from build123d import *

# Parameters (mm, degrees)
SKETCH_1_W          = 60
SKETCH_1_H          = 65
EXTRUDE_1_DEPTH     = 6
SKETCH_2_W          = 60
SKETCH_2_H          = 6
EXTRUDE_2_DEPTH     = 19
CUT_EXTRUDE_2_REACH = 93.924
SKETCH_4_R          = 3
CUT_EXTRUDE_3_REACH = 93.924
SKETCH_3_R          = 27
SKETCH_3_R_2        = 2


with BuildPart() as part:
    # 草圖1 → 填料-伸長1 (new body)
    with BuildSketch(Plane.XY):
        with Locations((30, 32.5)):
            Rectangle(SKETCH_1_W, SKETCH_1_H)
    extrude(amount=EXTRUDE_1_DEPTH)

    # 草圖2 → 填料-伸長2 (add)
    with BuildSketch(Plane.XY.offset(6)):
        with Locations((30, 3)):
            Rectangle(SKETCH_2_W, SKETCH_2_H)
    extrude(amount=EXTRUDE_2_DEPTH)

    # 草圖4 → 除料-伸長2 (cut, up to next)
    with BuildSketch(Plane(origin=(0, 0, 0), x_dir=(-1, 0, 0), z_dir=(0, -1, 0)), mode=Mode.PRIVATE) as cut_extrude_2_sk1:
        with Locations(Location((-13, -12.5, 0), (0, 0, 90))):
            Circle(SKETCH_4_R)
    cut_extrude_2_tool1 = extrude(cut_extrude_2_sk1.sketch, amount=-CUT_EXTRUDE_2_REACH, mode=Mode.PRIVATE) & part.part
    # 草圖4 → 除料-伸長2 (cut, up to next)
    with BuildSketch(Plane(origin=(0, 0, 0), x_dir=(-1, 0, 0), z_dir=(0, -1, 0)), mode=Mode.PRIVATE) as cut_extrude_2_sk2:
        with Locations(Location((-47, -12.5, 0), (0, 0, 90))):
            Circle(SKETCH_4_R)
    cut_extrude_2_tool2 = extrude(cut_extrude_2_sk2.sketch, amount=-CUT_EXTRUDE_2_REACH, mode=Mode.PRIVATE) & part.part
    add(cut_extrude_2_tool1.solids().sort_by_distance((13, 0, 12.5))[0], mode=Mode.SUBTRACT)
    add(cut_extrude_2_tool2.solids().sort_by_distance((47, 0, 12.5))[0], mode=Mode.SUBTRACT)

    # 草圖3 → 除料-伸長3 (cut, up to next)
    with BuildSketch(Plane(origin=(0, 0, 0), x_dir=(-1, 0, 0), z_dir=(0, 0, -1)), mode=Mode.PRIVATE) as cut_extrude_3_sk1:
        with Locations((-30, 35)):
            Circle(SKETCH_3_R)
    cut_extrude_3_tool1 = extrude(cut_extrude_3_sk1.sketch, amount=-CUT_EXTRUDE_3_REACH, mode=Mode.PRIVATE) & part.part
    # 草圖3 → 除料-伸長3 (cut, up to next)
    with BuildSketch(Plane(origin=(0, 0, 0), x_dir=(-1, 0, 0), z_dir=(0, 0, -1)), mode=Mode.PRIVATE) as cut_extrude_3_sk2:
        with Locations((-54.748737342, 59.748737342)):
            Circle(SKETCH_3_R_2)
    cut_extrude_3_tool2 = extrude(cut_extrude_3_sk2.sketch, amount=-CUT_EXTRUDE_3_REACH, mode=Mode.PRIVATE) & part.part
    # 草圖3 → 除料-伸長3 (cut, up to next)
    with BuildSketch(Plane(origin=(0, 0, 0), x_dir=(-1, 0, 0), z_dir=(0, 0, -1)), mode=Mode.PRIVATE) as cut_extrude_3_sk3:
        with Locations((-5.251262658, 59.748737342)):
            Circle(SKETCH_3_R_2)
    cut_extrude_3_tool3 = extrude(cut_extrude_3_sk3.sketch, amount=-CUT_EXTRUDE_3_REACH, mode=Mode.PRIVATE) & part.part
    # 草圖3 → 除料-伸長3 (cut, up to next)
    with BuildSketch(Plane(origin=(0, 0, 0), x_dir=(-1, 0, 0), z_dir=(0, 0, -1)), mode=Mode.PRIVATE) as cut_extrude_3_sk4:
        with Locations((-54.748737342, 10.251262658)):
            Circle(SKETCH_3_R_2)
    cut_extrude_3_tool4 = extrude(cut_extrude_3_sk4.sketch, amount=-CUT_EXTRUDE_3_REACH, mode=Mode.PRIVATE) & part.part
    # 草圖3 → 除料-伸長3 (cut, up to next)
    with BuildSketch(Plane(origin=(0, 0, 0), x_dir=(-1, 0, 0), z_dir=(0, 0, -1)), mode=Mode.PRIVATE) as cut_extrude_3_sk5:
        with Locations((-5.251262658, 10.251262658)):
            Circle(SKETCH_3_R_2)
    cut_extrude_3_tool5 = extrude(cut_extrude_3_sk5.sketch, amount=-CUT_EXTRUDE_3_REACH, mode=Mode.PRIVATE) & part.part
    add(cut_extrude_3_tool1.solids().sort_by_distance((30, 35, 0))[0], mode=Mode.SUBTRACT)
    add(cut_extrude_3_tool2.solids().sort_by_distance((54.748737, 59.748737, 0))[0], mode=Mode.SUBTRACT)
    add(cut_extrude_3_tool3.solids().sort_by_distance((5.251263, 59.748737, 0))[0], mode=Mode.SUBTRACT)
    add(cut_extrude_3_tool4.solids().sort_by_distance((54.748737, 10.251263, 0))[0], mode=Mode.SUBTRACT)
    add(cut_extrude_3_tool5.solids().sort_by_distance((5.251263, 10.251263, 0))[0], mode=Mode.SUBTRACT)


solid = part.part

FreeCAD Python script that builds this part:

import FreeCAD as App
import Part
import Sketcher
from FreeCAD import Vector

doc = App.newDocument("Part")
body = doc.addObject("PartDesign::Body", "Body")

sketch1 = body.newObject("Sketcher::SketchObject", "Sketch")
sketch1.AttachmentSupport = (doc.getObject("XY_Plane"), [""])
sketch1.MapMode = "FlatFace"
sketch1.addGeometry([
    Part.LineSegment(Vector(0, 65, 0), Vector(0, 0, 0)),
    Part.LineSegment(Vector(0, 0, 0), Vector(60, 0, 0)),
    Part.LineSegment(Vector(60, 0, 0), Vector(60, 65, 0)),
    Part.LineSegment(Vector(60, 65, 0), Vector(0, 65, 0)),
], False)
sketch1.addConstraint([
    Sketcher.Constraint("Coincident", 0, 2, 1, 1),
    Sketcher.Constraint("Coincident", 1, 2, 2, 1),
    Sketcher.Constraint("Coincident", 2, 2, 3, 1),
    Sketcher.Constraint("Coincident", 3, 2, 0, 1),
    Sketcher.Constraint("Vertical", 0),
    Sketcher.Constraint("Horizontal", 1),
    Sketcher.Constraint("Vertical", 2),
    Sketcher.Constraint("Horizontal", 3),
    Sketcher.Constraint("Coincident", 0, 2, -1, 1),
    Sketcher.Constraint("DistanceX", 1, 1, 1, 2, 60.0),
    Sketcher.Constraint("DistanceY", 0, 2, 0, 1, 65.0),
])
pad1 = body.newObject("PartDesign::Pad", "Pad")
pad1.Profile = sketch1
pad1.Length = 6

sketch2 = body.newObject("Sketcher::SketchObject", "Sketch001")
sketch2.AttachmentSupport = (doc.getObject("XY_Plane"), [""])
sketch2.MapMode = "FlatFace"
sketch2.AttachmentOffset = App.Placement(Vector(0, 0, 6), App.Rotation())
sketch2.addGeometry([
    Part.LineSegment(Vector(0, 6, 0), Vector(0, 0, 0)),
    Part.LineSegment(Vector(0, 0, 0), Vector(60, 0, 0)),
    Part.LineSegment(Vector(60, 0, 0), Vector(60, 6, 0)),
    Part.LineSegment(Vector(60, 6, 0), Vector(0, 6, 0)),
], False)
sketch2.addConstraint([
    Sketcher.Constraint("Coincident", 0, 2, 1, 1),
    Sketcher.Constraint("Coincident", 1, 2, 2, 1),
    Sketcher.Constraint("Coincident", 2, 2, 3, 1),
    Sketcher.Constraint("Coincident", 3, 2, 0, 1),
    Sketcher.Constraint("Vertical", 0),
    Sketcher.Constraint("Horizontal", 1),
    Sketcher.Constraint("Vertical", 2),
    Sketcher.Constraint("Horizontal", 3),
    Sketcher.Constraint("Coincident", 0, 2, -1, 1),
    Sketcher.Constraint("DistanceX", 1, 1, 1, 2, 60.0),
    Sketcher.Constraint("DistanceY", 0, 2, 0, 1, 6.0),
])
pad2 = body.newObject("PartDesign::Pad", "Pad001")
pad2.Profile = sketch2
pad2.Length = 19

sketch3 = body.newObject("Sketcher::SketchObject", "Sketch002")
sketch3.AttachmentSupport = (doc.getObject("XZ_Plane"), [""])
sketch3.MapMode = "FlatFace"
sketch3.addGeometry(Part.Circle(Vector(13, 12.5, 0), Vector(0, 0, 1), 3), False)
sketch3.addConstraint([
    Sketcher.Constraint("Diameter", 0, 6.0),
    Sketcher.Constraint("DistanceX", -1, 1, 0, 3, 13.0),
    Sketcher.Constraint("DistanceY", -1, 1, 0, 3, 12.5),
])
pocket1 = body.newObject("PartDesign::Pocket", "Pocket")
pocket1.Profile = sketch3
pocket1.Type = "UpToFirst"

sketch4 = body.newObject("Sketcher::SketchObject", "Sketch003")
sketch4.AttachmentSupport = (doc.getObject("XZ_Plane"), [""])
sketch4.MapMode = "FlatFace"
sketch4.addGeometry(Part.Circle(Vector(47, 12.5, 0), Vector(0, 0, 1), 3), False)
sketch4.addConstraint([
    Sketcher.Constraint("Diameter", 0, 6.0),
    Sketcher.Constraint("DistanceX", -1, 1, 0, 3, 47.0),
    Sketcher.Constraint("DistanceY", -1, 1, 0, 3, 12.5),
])
pocket2 = body.newObject("PartDesign::Pocket", "Pocket001")
pocket2.Profile = sketch4
pocket2.Type = "UpToFirst"

sketch5 = body.newObject("Sketcher::SketchObject", "Sketch004")
sketch5.AttachmentSupport = (doc.getObject("XY_Plane"), [""])
sketch5.MapMode = "FlatFace"
sketch5.addGeometry(Part.Circle(Vector(30, 35, 0), Vector(0, 0, 1), 27), False)
sketch5.addConstraint([
    Sketcher.Constraint("Diameter", 0, 54.0),
    Sketcher.Constraint("DistanceX", -1, 1, 0, 3, 30.0),
    Sketcher.Constraint("DistanceY", -1, 1, 0, 3, 35.0),
])
pocket3 = body.newObject("PartDesign::Pocket", "Pocket002")
pocket3.Profile = sketch5
pocket3.Type = "UpToFirst"
pocket3.Reversed = True

sketch6 = body.newObject("Sketcher::SketchObject", "Sketch005")
sketch6.AttachmentSupport = (doc.getObject("XY_Plane"), [""])
sketch6.MapMode = "FlatFace"
sketch6.addGeometry(Part.Circle(Vector(54.748737, 59.748737, 0), Vector(0, 0, 1), 2), False)
sketch6.addConstraint([
    Sketcher.Constraint("Diameter", 0, 4.0),
    Sketcher.Constraint("DistanceX", -1, 1, 0, 3, 54.748737),
    Sketcher.Constraint("DistanceY", -1, 1, 0, 3, 59.748737),
])
pocket4 = body.newObject("PartDesign::Pocket", "Pocket003")
pocket4.Profile = sketch6
pocket4.Type = "UpToFirst"
pocket4.Reversed = True

sketch7 = body.newObject("Sketcher::SketchObject", "Sketch006")
sketch7.AttachmentSupport = (doc.getObject("XY_Plane"), [""])
sketch7.MapMode = "FlatFace"
sketch7.addGeometry(Part.Circle(Vector(5.251263, 59.748737, 0), Vector(0, 0, 1), 2), False)
sketch7.addConstraint([
    Sketcher.Constraint("Diameter", 0, 4.0),
    Sketcher.Constraint("DistanceX", -1, 1, 0, 3, 5.251263),
    Sketcher.Constraint("DistanceY", -1, 1, 0, 3, 59.748737),
])
pocket5 = body.newObject("PartDesign::Pocket", "Pocket004")
pocket5.Profile = sketch7
pocket5.Type = "UpToFirst"
pocket5.Reversed = True

sketch8 = body.newObject("Sketcher::SketchObject", "Sketch007")
sketch8.AttachmentSupport = (doc.getObject("XY_Plane"), [""])
sketch8.MapMode = "FlatFace"
sketch8.addGeometry(Part.Circle(Vector(54.748737, 10.251263, 0), Vector(0, 0, 1), 2), False)
sketch8.addConstraint([
    Sketcher.Constraint("Diameter", 0, 4.0),
    Sketcher.Constraint("DistanceX", -1, 1, 0, 3, 54.748737),
    Sketcher.Constraint("DistanceY", -1, 1, 0, 3, 10.251263),
])
pocket6 = body.newObject("PartDesign::Pocket", "Pocket005")
pocket6.Profile = sketch8
pocket6.Type = "UpToFirst"
pocket6.Reversed = True

sketch9 = body.newObject("Sketcher::SketchObject", "Sketch008")
sketch9.AttachmentSupport = (doc.getObject("XY_Plane"), [""])
sketch9.MapMode = "FlatFace"
sketch9.addGeometry(Part.Circle(Vector(5.251263, 10.251263, 0), Vector(0, 0, 1), 2), False)
sketch9.addConstraint([
    Sketcher.Constraint("Diameter", 0, 4.0),
    Sketcher.Constraint("DistanceX", -1, 1, 0, 3, 5.251263),
    Sketcher.Constraint("DistanceY", -1, 1, 0, 3, 10.251263),
])
pocket7 = body.newObject("PartDesign::Pocket", "Pocket006")
pocket7.Profile = sketch9
pocket7.Type = "UpToFirst"
pocket7.Reversed = True

doc.recompute()
